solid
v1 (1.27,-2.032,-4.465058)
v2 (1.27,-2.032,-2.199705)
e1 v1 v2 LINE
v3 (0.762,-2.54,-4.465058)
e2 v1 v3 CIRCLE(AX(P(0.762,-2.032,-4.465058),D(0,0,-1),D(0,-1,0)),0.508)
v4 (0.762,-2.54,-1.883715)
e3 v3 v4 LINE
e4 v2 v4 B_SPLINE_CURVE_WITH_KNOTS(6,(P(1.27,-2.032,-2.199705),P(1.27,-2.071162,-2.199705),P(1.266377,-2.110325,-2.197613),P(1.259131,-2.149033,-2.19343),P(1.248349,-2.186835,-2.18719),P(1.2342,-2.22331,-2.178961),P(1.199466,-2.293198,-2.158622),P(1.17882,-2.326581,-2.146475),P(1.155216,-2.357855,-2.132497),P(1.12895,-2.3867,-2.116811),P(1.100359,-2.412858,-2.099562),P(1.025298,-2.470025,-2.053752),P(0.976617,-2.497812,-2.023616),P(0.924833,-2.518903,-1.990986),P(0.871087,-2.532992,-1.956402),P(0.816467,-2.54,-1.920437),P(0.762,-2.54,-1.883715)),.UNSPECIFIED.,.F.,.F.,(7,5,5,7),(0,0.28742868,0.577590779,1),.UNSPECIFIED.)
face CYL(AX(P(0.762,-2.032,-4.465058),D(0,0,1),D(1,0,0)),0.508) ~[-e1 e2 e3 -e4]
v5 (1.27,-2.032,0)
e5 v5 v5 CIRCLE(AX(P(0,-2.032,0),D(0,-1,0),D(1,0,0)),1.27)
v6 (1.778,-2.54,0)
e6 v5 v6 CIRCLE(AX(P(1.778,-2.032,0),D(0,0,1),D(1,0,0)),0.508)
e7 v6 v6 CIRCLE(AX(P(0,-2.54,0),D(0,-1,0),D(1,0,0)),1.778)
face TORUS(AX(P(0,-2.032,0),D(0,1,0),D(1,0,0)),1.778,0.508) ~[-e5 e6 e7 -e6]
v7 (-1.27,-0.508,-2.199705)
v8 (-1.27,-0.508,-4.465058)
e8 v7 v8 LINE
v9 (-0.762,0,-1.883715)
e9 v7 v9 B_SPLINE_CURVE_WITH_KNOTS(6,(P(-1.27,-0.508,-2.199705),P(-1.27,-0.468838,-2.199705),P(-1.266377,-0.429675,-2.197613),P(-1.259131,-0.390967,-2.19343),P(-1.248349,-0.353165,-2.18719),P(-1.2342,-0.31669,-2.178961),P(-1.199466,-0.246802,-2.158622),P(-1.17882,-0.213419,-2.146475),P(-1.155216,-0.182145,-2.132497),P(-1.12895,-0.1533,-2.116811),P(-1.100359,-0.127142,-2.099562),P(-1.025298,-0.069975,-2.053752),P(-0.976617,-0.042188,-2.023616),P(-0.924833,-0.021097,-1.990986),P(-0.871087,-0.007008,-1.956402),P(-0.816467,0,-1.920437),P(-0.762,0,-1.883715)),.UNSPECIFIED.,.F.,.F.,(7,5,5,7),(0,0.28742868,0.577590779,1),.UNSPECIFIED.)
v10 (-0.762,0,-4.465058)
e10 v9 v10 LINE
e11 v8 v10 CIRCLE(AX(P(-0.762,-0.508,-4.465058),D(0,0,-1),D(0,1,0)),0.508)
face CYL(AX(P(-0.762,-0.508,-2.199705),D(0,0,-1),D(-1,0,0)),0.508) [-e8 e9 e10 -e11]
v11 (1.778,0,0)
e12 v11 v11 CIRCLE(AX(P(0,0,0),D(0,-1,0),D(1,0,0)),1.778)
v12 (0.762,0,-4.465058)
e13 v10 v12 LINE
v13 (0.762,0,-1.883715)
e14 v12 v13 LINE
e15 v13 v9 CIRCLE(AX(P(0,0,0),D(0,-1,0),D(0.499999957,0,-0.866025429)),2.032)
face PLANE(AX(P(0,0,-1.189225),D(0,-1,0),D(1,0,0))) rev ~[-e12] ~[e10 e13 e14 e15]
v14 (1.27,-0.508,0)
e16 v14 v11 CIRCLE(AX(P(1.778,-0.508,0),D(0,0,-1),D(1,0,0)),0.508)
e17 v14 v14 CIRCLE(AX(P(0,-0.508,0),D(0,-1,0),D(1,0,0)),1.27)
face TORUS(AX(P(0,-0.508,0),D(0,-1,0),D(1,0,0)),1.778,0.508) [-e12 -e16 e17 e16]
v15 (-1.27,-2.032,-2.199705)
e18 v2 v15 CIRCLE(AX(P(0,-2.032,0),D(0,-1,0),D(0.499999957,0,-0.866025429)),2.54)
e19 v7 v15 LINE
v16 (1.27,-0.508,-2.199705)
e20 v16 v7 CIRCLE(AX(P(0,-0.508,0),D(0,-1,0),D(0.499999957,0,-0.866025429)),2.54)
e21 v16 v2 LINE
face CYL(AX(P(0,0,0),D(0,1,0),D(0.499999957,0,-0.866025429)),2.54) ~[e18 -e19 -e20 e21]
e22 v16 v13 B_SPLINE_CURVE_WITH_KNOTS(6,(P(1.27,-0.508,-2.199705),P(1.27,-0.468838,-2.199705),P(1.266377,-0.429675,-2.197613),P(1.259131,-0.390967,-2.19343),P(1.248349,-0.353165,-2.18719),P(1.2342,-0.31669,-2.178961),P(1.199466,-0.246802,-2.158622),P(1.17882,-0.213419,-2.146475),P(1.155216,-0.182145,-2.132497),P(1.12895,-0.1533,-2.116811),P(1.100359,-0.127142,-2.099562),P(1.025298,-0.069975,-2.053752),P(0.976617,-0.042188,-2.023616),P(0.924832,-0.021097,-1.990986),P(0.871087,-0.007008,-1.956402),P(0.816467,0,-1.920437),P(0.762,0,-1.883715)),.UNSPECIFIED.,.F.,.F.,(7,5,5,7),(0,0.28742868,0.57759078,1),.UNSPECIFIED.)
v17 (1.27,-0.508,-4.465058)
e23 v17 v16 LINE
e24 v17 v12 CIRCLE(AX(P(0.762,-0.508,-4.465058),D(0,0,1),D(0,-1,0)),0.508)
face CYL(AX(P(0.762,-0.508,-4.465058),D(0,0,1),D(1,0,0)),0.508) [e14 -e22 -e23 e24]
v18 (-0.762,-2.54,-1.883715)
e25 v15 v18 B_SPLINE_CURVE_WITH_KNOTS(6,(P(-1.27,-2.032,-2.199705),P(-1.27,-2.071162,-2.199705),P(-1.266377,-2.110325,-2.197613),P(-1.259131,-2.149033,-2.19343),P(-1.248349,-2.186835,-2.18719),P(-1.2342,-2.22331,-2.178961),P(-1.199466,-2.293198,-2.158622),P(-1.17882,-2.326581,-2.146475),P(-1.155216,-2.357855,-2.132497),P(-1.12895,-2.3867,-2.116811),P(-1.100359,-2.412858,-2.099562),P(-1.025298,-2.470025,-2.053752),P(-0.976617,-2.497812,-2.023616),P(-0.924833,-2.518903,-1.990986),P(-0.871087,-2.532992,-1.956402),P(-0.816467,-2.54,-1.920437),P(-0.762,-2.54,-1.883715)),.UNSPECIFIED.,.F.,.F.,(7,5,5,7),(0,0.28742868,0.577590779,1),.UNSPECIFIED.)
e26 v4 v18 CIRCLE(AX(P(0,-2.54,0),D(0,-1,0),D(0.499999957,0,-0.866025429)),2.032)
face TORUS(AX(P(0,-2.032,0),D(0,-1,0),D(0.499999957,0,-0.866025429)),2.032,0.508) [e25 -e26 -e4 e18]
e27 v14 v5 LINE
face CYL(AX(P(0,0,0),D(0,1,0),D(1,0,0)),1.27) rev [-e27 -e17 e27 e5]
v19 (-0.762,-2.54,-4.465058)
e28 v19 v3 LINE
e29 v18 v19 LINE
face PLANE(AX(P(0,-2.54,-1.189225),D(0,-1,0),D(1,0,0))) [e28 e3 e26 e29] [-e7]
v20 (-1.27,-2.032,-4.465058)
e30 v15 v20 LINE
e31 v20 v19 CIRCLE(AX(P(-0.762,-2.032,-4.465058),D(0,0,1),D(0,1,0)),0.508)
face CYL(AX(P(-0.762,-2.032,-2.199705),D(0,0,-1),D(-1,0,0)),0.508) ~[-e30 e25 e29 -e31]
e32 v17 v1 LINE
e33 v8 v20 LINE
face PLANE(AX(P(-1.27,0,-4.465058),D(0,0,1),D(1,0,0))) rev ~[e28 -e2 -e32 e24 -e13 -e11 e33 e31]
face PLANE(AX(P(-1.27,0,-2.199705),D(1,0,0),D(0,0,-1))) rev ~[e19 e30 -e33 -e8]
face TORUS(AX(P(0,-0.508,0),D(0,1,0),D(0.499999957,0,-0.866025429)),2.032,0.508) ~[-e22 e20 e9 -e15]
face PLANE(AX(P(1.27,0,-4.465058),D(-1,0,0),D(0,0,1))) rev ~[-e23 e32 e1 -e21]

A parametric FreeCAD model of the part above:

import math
import FreeCAD as App
import Part
import Sketcher
from FreeCAD import Vector
Q = App.Units.Quantity


def edges_at(feature, points):
    """Names of the edges that pass closest to the given points."""
    edges = feature.Shape.Edges
    near = lambda p: min(range(len(edges)), key=lambda i: edges[i].distToShape(Part.Vertex(*p))[0])
    return sorted({f"Edge{near(p) + 1}" for p in points})

doc = App.newDocument("Part")
body = doc.addObject("PartDesign::Body", "Body")

# Sketch on XZ plane
sketch1 = body.newObject("Sketcher::SketchObject", "Sketch")
sketch1.AttachmentSupport = (doc.getObject("XZ_Plane"), [""])
sketch1.MapMode = "FlatFace"
sketch1.addGeometry([
    Part.LineSegment(Vector(1.3, -4.5, 0), Vector(1.3, -2.2, 0)),  # 0
    Part.ArcOfCircle(Part.Circle(Vector(0, 0, 0), Vector(0, 0, 1), 2.5), math.radians(-60), math.radians(240)),  # 1
    Part.LineSegment(Vector(-1.3, -2.2, 0), Vector(-1.3, -4.5, 0)),  # 2
    Part.LineSegment(Vector(-1.3, -4.5, 0), Vector(1.3, -4.5, 0)),  # 3
    Part.Circle(Vector(0, 0, 0), Vector(0, 0, 1), 1.3),  # 4
], False)
sketch1.addConstraint([
    Sketcher.Constraint("Coincident", 0, 2, 1, 1),
    Sketcher.Constraint("Coincident", 1, 2, 2, 1),
    Sketcher.Constraint("Coincident", 2, 2, 3, 1),
    Sketcher.Constraint("Coincident", 3, 2, 0, 1),
    Sketcher.Constraint("Vertical", 0),
    Sketcher.Constraint("Vertical", 2),
    Sketcher.Constraint("Horizontal", 3),
    Sketcher.Constraint("Coincident", 1, 3, -1, 1),
    Sketcher.Constraint("Coincident", 4, 3, -1, 1),
    Sketcher.Constraint("Horizontal", 0, 2, 1, 2),
    Sketcher.Constraint("Diameter", 4, Q("0.1 in")),
    Sketcher.Constraint("Radius", 1, Q("0.1 in")),
    Sketcher.Constraint("DistanceX", 3, 1, 3, 2, Q("0.1 in")),
    Sketcher.Constraint("DistanceY", 0, 1, 0, 2, Q("2.265353 mm")),
])
pad1 = body.newObject("PartDesign::Pad", "Pad")
pad1.Profile = sketch1
pad1.Length = Q("0.1 in")
doc.recompute()

fillet = body.newObject("PartDesign::Fillet", "Fillet")
fillet.Base = (pad1, edges_at(pad1, [
    (-1.27, -2.54, 0),
    (0, -2.54, 2.54),
    (-1.27, -2.54, -3.332),
    (1.27, -2.54, -3.332),
    (-1.27, 0, 0),
    (0, 0, 2.54),
    (-1.27, 0, -3.332),
    (1.27, 0, -3.332),
]))
fillet.Radius = Q("0.02 in")

doc.recompute()
